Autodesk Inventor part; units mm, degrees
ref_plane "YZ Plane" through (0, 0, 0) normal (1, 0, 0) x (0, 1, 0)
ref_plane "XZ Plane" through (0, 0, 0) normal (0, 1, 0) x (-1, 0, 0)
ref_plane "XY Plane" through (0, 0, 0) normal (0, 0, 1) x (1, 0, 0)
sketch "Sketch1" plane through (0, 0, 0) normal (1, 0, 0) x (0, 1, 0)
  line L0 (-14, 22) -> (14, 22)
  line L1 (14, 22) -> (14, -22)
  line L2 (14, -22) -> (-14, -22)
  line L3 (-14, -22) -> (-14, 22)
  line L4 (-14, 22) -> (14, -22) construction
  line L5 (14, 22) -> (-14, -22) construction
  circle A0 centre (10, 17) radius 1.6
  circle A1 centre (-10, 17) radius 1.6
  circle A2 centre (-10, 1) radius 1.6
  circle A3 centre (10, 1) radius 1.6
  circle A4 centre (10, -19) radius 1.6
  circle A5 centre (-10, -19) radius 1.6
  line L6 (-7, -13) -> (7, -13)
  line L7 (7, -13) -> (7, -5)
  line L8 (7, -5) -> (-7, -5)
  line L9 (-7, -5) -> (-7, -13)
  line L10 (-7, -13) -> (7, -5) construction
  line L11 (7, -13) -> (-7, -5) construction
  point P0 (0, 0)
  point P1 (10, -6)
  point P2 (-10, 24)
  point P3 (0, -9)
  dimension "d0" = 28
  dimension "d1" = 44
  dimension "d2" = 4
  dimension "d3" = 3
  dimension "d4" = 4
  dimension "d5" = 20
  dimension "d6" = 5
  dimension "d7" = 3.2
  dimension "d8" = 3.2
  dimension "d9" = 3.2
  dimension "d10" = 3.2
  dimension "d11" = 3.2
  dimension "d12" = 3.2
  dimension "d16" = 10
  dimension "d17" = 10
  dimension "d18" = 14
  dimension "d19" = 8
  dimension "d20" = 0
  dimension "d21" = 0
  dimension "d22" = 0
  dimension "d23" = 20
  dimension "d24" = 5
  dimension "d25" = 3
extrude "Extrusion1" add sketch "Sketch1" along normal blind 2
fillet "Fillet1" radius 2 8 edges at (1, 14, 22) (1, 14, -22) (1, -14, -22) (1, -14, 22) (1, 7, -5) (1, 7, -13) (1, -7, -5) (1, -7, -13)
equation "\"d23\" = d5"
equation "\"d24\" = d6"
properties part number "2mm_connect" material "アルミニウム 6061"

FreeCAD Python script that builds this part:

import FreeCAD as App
import Part
import Sketcher
Q = App.Units.Quantity


def edges_at(feature, points):
    """Names of the edges that pass closest to the given points."""
    edges = feature.Shape.Edges
    near = lambda p: min(range(len(edges)), key=lambda i: edges[i].distToShape(Part.Vertex(*p))[0])
    return sorted({f"Edge{near(p) + 1}" for p in points})

doc = App.newDocument("Part")
params = doc.addObject("Spreadsheet::Sheet", "Params")
for row, (alias, value) in enumerate([
    ("sketch1_diameter", "3.2 mm"),
    ("sketch1_width", "28 mm"),
    ("sketch1_width2", "14 mm"),
    ("sketch1_height", "44 mm"),
    ("sketch1_height2", "8 mm"),
    ("pad1_length", "2 mm"),
    ("fillet_radius", "2 mm"),
], start=1):
    params.set(f"A{row}", alias)
    params.set(f"B{row}", "=" + value)
    params.setAlias(f"B{row}", alias)

body = doc.addObject("PartDesign::Body", "Body")

sketch1 = doc.addObject("Sketcher::SketchObject", "Sketch")
body.addObject(sketch1)
sketch1.AttachmentSupport = (doc.YZ_Plane, [""])
sketch1.MapMode = "FlatFace"
sketch1.addGeometry([
    Part.LineSegment(App.Vector(14, 22, 0), App.Vector(-14, 22, 0)),
    Part.LineSegment(App.Vector(-14, 22, 0), App.Vector(-14, -22, 0)),
    Part.LineSegment(App.Vector(-14, -22, 0), App.Vector(14, -22, 0)),
    Part.LineSegment(App.Vector(14, -22, 0), App.Vector(14, 22, 0)),
    Part.Circle(App.Vector(-10, -19, 0), App.Vector(0, 0, 1), 1.6),
    Part.Circle(App.Vector(10, -19, 0), App.Vector(0, 0, 1), 1.6),
    Part.LineSegment(App.Vector(7, -13, 0), App.Vector(-7, -13, 0)),
    Part.LineSegment(App.Vector(-7, -13, 0), App.Vector(-7, -5, 0)),
    Part.LineSegment(App.Vector(-7, -5, 0), App.Vector(7, -5, 0)),
    Part.LineSegment(App.Vector(7, -5, 0), App.Vector(7, -13, 0)),
    Part.Circle(App.Vector(-10, 1, 0), App.Vector(0, 0, 1), 1.6),
    Part.Circle(App.Vector(-10, 17, 0), App.Vector(0, 0, 1), 1.6),
    Part.Circle(App.Vector(10, 1, 0), App.Vector(0, 0, 1), 1.6),
    Part.Circle(App.Vector(10, 17, 0), App.Vector(0, 0, 1), 1.6),
], False)
sketch1.addConstraint([
    Sketcher.Constraint("Coincident", 0, 2, 1, 1),
    Sketcher.Constraint("Coincident", 1, 2, 2, 1),
    Sketcher.Constraint("Coincident", 2, 2, 3, 1),
    Sketcher.Constraint("Coincident", 3, 2, 0, 1),
    Sketcher.Constraint("Coincident", 6, 2, 7, 1),
    Sketcher.Constraint("Coincident", 7, 2, 8, 1),
    Sketcher.Constraint("Coincident", 8, 2, 9, 1),
    Sketcher.Constraint("Coincident", 9, 2, 6, 1),
    Sketcher.Constraint("Horizontal", 0),
    Sketcher.Constraint("Vertical", 1),
    Sketcher.Constraint("Horizontal", 2),
    Sketcher.Constraint("Vertical", 3),
    Sketcher.Constraint("Horizontal", 6),
    Sketcher.Constraint("Vertical", 7),
    Sketcher.Constraint("Horizontal", 8),
    Sketcher.Constraint("Vertical", 9),
    Sketcher.Constraint("Equal", 4, 5),
    Sketcher.Constraint("Equal", 5, 10),
    Sketcher.Constraint("Equal", 10, 11),
    Sketcher.Constraint("Equal", 11, 12),
    Sketcher.Constraint("Equal", 12, 13),
    Sketcher.Constraint("Symmetric", 0, 2, 2, 2, -1, 1),
    Sketcher.Constraint("Symmetric", 4, 3, 5, 3, -2),
    Sketcher.Constraint("Symmetric", 10, 3, 12, 3, -2),
    Sketcher.Constraint("Symmetric", 11, 3, 13, 3, -2),
    Sketcher.Constraint("Vertical", 4, 3, 10, 3),
    Sketcher.Constraint("Vertical", 10, 3, 11, 3),
    Sketcher.Constraint("Diameter", 4, Q("3.2 mm")),
    Sketcher.Constraint("DistanceX", 0, 2, 0, 1, Q("28 mm")),
    Sketcher.Constraint("DistanceX", 6, 2, 6, 1, Q("14 mm")),
    Sketcher.Constraint("DistanceY", 1, 2, 1, 1, Q("44 mm")),
    Sketcher.Constraint("DistanceY", 7, 1, 7, 2, Q("8 mm")),
    Sketcher.Constraint("DistanceX", 4, 3, -1, 1, Q("10 mm")),
    Sketcher.Constraint("DistanceY", 7, 2, -1, 1, Q("5 mm")),
    Sketcher.Constraint("DistanceY", 4, 3, 10, 3, Q("20 mm")),
    Sketcher.Constraint("DistanceY", 11, 3, 0, 2, Q("5 mm")),
    Sketcher.Constraint("DistanceY", 1, 2, 4, 3, Q("3 mm")),
    Sketcher.Constraint("DistanceX", 4, 3, 6, 2, Q("3 mm")),
])
sketch1.setExpression("Constraints[27]", "Params.sketch1_diameter")
sketch1.setExpression("Constraints[28]", "Params.sketch1_width")
sketch1.setExpression("Constraints[29]", "Params.sketch1_width2")
sketch1.setExpression("Constraints[30]", "Params.sketch1_height")
sketch1.setExpression("Constraints[31]", "Params.sketch1_height2")
pad1 = doc.addObject("PartDesign::Pad", "Pad")
body.addObject(pad1)
pad1.Profile = sketch1
pad1.setExpression("Length", "Params.pad1_length")
doc.recompute()

fillet = doc.addObject("PartDesign::Fillet", "Fillet")
body.addObject(fillet)
fillet.Base = (pad1, edges_at(pad1, [
    (1, 14, 22),
    (1, 14, -22),
    (1, -14, -22),
    (1, -14, 22),
    (1, 7, -5),
    (1, 7, -13),
    (1, -7, -5),
    (1, -7, -13),
]))
fillet.setExpression("Radius", "Params.fillet_radius")

doc.recompute()
